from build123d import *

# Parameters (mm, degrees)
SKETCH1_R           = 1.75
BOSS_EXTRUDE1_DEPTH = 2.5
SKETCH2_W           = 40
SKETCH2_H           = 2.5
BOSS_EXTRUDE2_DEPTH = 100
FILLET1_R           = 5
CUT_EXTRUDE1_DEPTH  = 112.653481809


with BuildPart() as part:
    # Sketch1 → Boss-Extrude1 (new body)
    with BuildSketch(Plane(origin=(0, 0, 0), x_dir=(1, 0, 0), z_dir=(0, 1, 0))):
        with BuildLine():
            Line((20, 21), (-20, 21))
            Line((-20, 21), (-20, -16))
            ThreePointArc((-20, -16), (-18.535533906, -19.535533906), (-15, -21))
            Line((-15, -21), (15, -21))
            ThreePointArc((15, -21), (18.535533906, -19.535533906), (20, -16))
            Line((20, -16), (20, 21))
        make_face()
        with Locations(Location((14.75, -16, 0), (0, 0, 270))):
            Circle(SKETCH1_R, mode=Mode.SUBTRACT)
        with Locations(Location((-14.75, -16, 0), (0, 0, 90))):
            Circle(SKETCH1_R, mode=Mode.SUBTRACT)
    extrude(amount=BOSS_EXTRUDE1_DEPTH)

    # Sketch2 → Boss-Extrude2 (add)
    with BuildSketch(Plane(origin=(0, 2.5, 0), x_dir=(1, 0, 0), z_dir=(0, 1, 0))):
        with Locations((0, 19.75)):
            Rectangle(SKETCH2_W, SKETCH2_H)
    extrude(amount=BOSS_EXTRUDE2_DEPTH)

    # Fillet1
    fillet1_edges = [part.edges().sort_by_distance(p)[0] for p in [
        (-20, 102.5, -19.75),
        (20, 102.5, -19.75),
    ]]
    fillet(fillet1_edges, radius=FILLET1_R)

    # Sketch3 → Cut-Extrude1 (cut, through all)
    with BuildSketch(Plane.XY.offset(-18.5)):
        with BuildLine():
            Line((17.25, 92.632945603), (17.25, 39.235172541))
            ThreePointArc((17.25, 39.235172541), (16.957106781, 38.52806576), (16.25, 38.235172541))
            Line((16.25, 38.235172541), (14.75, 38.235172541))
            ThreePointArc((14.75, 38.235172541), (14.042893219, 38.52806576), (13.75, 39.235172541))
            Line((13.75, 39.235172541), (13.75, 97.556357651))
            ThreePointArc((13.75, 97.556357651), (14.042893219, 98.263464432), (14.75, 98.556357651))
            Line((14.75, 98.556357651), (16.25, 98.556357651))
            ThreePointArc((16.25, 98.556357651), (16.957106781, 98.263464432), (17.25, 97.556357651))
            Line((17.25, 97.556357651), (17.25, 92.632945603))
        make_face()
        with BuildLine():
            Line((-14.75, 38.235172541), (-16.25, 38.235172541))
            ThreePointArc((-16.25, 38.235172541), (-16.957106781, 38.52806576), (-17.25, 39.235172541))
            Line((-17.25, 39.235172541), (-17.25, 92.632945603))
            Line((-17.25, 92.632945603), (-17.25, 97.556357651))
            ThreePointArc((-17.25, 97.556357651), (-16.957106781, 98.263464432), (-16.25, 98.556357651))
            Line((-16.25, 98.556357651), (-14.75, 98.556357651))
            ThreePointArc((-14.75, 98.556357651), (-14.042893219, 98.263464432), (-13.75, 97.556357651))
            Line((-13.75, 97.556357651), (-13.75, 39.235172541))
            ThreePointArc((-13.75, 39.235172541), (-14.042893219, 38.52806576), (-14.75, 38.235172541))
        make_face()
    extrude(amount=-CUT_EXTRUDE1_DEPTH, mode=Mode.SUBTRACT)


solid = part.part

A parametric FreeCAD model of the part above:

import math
import FreeCAD as App
import Part
import Sketcher

V = App.Vector


def edges_at(feature, points):
    """Names of the edges that pass closest to the given points."""
    edges = feature.Shape.Edges
    near = lambda p: min(range(len(edges)), key=lambda i: edges[i].distToShape(Part.Vertex(*p))[0])
    return sorted({f"Edge{near(p) + 1}" for p in points})

doc = App.newDocument("Part")
body = doc.addObject("PartDesign::Body", "Body")

sketch1 = body.newObject("Sketcher::SketchObject", "Sketch")
sketch1.AttachmentSupport = (doc.getObject("XZ_Plane"), [""])
sketch1.MapMode = "FlatFace"
sketch1.addGeometry([
    Part.LineSegment(V(20, -21, 0), V(-20, -21, 0)),
    Part.LineSegment(V(-20, -21, 0), V(-20, 16, 0)),
    Part.ArcOfCircle(Part.Circle(V(-15, 16, 0), V(0, 0, 1), 5), math.radians(90), math.radians(180)),
    Part.LineSegment(V(-15, 21, 0), V(15, 21, 0)),
    Part.ArcOfCircle(Part.Circle(V(15, 16, 0), V(0, 0, 1), 5), math.radians(0), math.radians(90)),
    Part.LineSegment(V(20, 16, 0), V(20, -21, 0)),
    Part.Circle(V(-14.8, 16, 0), V(0, 0, 1), 1.8),
    Part.Circle(V(14.8, 16, 0), V(0, 0, 1), 1.8),
], False)
sketch1.addConstraint([
    Sketcher.Constraint("Coincident", 0, 2, 1, 1),
    Sketcher.Constraint("Tangent", 1, 2, 2, 2),
    Sketcher.Constraint("Tangent", 2, 1, 3, 1),
    Sketcher.Constraint("Tangent", 3, 2, 4, 2),
    Sketcher.Constraint("Tangent", 4, 1, 5, 1),
    Sketcher.Constraint("Coincident", 5, 2, 0, 1),
    Sketcher.Constraint("Horizontal", 0),
    Sketcher.Constraint("Vertical", 1),
    Sketcher.Constraint("Horizontal", 3),
    Sketcher.Constraint("Vertical", 5),
    Sketcher.Constraint("Equal", 2, 4),
    Sketcher.Constraint("Equal", 6, 7),
    Sketcher.Constraint("Symmetric", 6, 3, 7, 3, -2),
    Sketcher.Constraint("Horizontal", 4, 3, 6, 3),
    Sketcher.Constraint("Radius", 2, 5.0),
    Sketcher.Constraint("Diameter", 6, 3.5),
    Sketcher.Constraint("DistanceX", 0, 2, 0, 1, 40.0),
    Sketcher.Constraint("DistanceY", 1, 1, 1, 2, 37.0),
    Sketcher.Constraint("DistanceX", 2, 3, -1, 1, 15.0),
    Sketcher.Constraint("DistanceY", -1, 1, 2, 3, 16.0),
    Sketcher.Constraint("DistanceX", 6, 3, 7, 3, 29.5),
])
pad1 = body.newObject("PartDesign::Pad", "Pad")
pad1.Profile = sketch1
pad1.Length = 2.5
pad1.Reversed = True

sketch2 = body.newObject("Sketcher::SketchObject", "Sketch001")
sketch2.AttachmentSupport = (doc.getObject("XZ_Plane"), [""])
sketch2.MapMode = "FlatFace"
sketch2.AttachmentOffset = App.Placement(V(0, 0, -2.5), App.Rotation())
sketch2.addGeometry([
    Part.LineSegment(V(-20, -21, 0), V(-20, -18.5, 0)),
    Part.LineSegment(V(-20, -18.5, 0), V(20, -18.5, 0)),
    Part.LineSegment(V(20, -18.5, 0), V(20, -21, 0)),
    Part.LineSegment(V(20, -21, 0), V(-20, -21, 0)),
], False)
sketch2.addConstraint([
    Sketcher.Constraint("Coincident", 0, 2, 1, 1),
    Sketcher.Constraint("Coincident", 1, 2, 2, 1),
    Sketcher.Constraint("Coincident", 2, 2, 3, 1),
    Sketcher.Constraint("Coincident", 3, 2, 0, 1),
    Sketcher.Constraint("Vertical", 0),
    Sketcher.Constraint("Horizontal", 1),
    Sketcher.Constraint("Vertical", 2),
    Sketcher.Constraint("Horizontal", 3),
    Sketcher.Constraint("DistanceX", 1, 1, 1, 2, 40.0),
    Sketcher.Constraint("DistanceY", 0, 1, 0, 2, 2.5),
    Sketcher.Constraint("DistanceX", 0, 2, -1, 1, 20.0),
    Sketcher.Constraint("DistanceY", 2, 2, -1, 1, 21.0),
])
pad2 = body.newObject("PartDesign::Pad", "Pad001")
pad2.Profile = sketch2
pad2.Length = 100
pad2.Reversed = True
doc.recompute()

fillet = body.newObject("PartDesign::Fillet", "Fillet")
fillet.Base = (pad2, edges_at(pad2, [(-20, 102.5, -19.75), (20, 102.5, -19.75)]))
fillet.Radius = 5

sketch3 = body.newObject("Sketcher::SketchObject", "Sketch002")
sketch3.AttachmentSupport = (doc.getObject("XY_Plane"), [""])
sketch3.MapMode = "FlatFace"
sketch3.AttachmentOffset = App.Placement(V(0, 0, -18.5), App.Rotation())
sketch3.addGeometry([
    Part.ArcOfCircle(Part.Circle(V(16.2, 39.2, 0), V(0, 0, 1), 1), math.radians(-90), math.radians(0)),
    Part.LineSegment(V(17.2, 39.2, 0), V(17.2, 97.6, 0)),
    Part.ArcOfCircle(Part.Circle(V(16.2, 97.6, 0), V(0, 0, 1), 1), math.radians(0), math.radians(90)),
    Part.LineSegment(V(16.2, 98.6, 0), V(14.8, 98.6, 0)),
    Part.ArcOfCircle(Part.Circle(V(14.8, 97.6, 0), V(0, 0, 1), 1), math.radians(90), math.radians(180)),
    Part.LineSegment(V(13.8, 97.6, 0), V(13.8, 39.2, 0)),
    Part.ArcOfCircle(Part.Circle(V(14.8, 39.2, 0), V(0, 0, 1), 1), math.radians(-180), math.radians(-90)),
    Part.LineSegment(V(14.8, 38.2, 0), V(16.2, 38.2, 0)),
    Part.LineSegment(V(-16.2, 38.2, 0), V(-14.8, 38.2, 0)),
    Part.ArcOfCircle(Part.Circle(V(-14.8, 39.2, 0), V(0, 0, 1), 1), math.radians(-90), math.radians(0)),
    Part.LineSegment(V(-13.8, 39.2, 0), V(-13.8, 97.6, 0)),
    Part.ArcOfCircle(Part.Circle(V(-14.8, 97.6, 0), V(0, 0, 1), 1), math.radians(0), math.radians(90)),
    Part.LineSegment(V(-14.8, 98.6, 0), V(-16.2, 98.6, 0)),
    Part.ArcOfCircle(Part.Circle(V(-16.2, 97.6, 0), V(0, 0, 1), 1), math.radians(90), math.radians(180)),
    Part.LineSegment(V(-17.2, 97.6, 0), V(-17.2, 39.2, 0)),
    Part.ArcOfCircle(Part.Circle(V(-16.2, 39.2, 0), V(0, 0, 1), 1), math.radians(-180), math.radians(-90)),
], False)
sketch3.addConstraint([
    Sketcher.Constraint("Tangent", 0, 2, 1, 1),
    Sketcher.Constraint("Tangent", 1, 2, 2, 1),
    Sketcher.Constraint("Tangent", 2, 2, 3, 1),
    Sketcher.Constraint("Tangent", 3, 2, 4, 1),
    Sketcher.Constraint("Tangent", 4, 2, 5, 1),
    Sketcher.Constraint("Tangent", 5, 2, 6, 1),
    Sketcher.Constraint("Tangent", 6, 2, 7, 1),
    Sketcher.Constraint("Tangent", 7, 2, 0, 1),
    Sketcher.Constraint("Tangent", 8, 2, 9, 1),
    Sketcher.Constraint("Tangent", 9, 2, 10, 1),
    Sketcher.Constraint("Tangent", 10, 2, 11, 1),
    Sketcher.Constraint("Tangent", 11, 2, 12, 1),
    Sketcher.Constraint("Tangent", 12, 2, 13, 1),
    Sketcher.Constraint("Tangent", 13, 2, 14, 1),
    Sketcher.Constraint("Tangent", 14, 2, 15, 1),
    Sketcher.Constraint("Tangent", 15, 2, 8, 1),
    Sketcher.Constraint("Vertical", 1),
    Sketcher.Constraint("Horizontal", 3),
    Sketcher.Constraint("Vertical", 5),
    Sketcher.Constraint("Horizontal", 7),
    Sketcher.Constraint("Horizontal", 8),
    Sketcher.Constraint("Vertical", 10),
    Sketcher.Constraint("Horizontal", 12),
    Sketcher.Constraint("Vertical", 14),
    Sketcher.Constraint("Equal", 0, 2),
    Sketcher.Constraint("Equal", 2, 4),
    Sketcher.Constraint("Equal", 4, 6),
    Sketcher.Constraint("Equal", 6, 9),
    Sketcher.Constraint("Equal", 9, 11),
    Sketcher.Constraint("Equal", 11, 13),
    Sketcher.Constraint("Equal", 13, 15),
    Sketcher.Constraint("Symmetric", 6, 3, 9, 3, -2),
    Sketcher.Constraint("Symmetric", 2, 3, 13, 3, -2),
    Sketcher.Constraint("Radius", 0, 1.0),
    Sketcher.Constraint("DistanceX", 3, 2, 3, 1, 1.5),
    Sketcher.Constraint("DistanceX", 9, 3, 0, 3, 31.0),
    Sketcher.Constraint("DistanceY", 1, 1, 1, 2, 58.321185),
    Sketcher.Constraint("DistanceY", -1, 1, 0, 3, 39.235173),
])
pocket1 = body.newObject("PartDesign::Pocket", "Pocket")
pocket1.Profile = sketch3
pocket1.Type = "ThroughAll"

doc.recompute()
